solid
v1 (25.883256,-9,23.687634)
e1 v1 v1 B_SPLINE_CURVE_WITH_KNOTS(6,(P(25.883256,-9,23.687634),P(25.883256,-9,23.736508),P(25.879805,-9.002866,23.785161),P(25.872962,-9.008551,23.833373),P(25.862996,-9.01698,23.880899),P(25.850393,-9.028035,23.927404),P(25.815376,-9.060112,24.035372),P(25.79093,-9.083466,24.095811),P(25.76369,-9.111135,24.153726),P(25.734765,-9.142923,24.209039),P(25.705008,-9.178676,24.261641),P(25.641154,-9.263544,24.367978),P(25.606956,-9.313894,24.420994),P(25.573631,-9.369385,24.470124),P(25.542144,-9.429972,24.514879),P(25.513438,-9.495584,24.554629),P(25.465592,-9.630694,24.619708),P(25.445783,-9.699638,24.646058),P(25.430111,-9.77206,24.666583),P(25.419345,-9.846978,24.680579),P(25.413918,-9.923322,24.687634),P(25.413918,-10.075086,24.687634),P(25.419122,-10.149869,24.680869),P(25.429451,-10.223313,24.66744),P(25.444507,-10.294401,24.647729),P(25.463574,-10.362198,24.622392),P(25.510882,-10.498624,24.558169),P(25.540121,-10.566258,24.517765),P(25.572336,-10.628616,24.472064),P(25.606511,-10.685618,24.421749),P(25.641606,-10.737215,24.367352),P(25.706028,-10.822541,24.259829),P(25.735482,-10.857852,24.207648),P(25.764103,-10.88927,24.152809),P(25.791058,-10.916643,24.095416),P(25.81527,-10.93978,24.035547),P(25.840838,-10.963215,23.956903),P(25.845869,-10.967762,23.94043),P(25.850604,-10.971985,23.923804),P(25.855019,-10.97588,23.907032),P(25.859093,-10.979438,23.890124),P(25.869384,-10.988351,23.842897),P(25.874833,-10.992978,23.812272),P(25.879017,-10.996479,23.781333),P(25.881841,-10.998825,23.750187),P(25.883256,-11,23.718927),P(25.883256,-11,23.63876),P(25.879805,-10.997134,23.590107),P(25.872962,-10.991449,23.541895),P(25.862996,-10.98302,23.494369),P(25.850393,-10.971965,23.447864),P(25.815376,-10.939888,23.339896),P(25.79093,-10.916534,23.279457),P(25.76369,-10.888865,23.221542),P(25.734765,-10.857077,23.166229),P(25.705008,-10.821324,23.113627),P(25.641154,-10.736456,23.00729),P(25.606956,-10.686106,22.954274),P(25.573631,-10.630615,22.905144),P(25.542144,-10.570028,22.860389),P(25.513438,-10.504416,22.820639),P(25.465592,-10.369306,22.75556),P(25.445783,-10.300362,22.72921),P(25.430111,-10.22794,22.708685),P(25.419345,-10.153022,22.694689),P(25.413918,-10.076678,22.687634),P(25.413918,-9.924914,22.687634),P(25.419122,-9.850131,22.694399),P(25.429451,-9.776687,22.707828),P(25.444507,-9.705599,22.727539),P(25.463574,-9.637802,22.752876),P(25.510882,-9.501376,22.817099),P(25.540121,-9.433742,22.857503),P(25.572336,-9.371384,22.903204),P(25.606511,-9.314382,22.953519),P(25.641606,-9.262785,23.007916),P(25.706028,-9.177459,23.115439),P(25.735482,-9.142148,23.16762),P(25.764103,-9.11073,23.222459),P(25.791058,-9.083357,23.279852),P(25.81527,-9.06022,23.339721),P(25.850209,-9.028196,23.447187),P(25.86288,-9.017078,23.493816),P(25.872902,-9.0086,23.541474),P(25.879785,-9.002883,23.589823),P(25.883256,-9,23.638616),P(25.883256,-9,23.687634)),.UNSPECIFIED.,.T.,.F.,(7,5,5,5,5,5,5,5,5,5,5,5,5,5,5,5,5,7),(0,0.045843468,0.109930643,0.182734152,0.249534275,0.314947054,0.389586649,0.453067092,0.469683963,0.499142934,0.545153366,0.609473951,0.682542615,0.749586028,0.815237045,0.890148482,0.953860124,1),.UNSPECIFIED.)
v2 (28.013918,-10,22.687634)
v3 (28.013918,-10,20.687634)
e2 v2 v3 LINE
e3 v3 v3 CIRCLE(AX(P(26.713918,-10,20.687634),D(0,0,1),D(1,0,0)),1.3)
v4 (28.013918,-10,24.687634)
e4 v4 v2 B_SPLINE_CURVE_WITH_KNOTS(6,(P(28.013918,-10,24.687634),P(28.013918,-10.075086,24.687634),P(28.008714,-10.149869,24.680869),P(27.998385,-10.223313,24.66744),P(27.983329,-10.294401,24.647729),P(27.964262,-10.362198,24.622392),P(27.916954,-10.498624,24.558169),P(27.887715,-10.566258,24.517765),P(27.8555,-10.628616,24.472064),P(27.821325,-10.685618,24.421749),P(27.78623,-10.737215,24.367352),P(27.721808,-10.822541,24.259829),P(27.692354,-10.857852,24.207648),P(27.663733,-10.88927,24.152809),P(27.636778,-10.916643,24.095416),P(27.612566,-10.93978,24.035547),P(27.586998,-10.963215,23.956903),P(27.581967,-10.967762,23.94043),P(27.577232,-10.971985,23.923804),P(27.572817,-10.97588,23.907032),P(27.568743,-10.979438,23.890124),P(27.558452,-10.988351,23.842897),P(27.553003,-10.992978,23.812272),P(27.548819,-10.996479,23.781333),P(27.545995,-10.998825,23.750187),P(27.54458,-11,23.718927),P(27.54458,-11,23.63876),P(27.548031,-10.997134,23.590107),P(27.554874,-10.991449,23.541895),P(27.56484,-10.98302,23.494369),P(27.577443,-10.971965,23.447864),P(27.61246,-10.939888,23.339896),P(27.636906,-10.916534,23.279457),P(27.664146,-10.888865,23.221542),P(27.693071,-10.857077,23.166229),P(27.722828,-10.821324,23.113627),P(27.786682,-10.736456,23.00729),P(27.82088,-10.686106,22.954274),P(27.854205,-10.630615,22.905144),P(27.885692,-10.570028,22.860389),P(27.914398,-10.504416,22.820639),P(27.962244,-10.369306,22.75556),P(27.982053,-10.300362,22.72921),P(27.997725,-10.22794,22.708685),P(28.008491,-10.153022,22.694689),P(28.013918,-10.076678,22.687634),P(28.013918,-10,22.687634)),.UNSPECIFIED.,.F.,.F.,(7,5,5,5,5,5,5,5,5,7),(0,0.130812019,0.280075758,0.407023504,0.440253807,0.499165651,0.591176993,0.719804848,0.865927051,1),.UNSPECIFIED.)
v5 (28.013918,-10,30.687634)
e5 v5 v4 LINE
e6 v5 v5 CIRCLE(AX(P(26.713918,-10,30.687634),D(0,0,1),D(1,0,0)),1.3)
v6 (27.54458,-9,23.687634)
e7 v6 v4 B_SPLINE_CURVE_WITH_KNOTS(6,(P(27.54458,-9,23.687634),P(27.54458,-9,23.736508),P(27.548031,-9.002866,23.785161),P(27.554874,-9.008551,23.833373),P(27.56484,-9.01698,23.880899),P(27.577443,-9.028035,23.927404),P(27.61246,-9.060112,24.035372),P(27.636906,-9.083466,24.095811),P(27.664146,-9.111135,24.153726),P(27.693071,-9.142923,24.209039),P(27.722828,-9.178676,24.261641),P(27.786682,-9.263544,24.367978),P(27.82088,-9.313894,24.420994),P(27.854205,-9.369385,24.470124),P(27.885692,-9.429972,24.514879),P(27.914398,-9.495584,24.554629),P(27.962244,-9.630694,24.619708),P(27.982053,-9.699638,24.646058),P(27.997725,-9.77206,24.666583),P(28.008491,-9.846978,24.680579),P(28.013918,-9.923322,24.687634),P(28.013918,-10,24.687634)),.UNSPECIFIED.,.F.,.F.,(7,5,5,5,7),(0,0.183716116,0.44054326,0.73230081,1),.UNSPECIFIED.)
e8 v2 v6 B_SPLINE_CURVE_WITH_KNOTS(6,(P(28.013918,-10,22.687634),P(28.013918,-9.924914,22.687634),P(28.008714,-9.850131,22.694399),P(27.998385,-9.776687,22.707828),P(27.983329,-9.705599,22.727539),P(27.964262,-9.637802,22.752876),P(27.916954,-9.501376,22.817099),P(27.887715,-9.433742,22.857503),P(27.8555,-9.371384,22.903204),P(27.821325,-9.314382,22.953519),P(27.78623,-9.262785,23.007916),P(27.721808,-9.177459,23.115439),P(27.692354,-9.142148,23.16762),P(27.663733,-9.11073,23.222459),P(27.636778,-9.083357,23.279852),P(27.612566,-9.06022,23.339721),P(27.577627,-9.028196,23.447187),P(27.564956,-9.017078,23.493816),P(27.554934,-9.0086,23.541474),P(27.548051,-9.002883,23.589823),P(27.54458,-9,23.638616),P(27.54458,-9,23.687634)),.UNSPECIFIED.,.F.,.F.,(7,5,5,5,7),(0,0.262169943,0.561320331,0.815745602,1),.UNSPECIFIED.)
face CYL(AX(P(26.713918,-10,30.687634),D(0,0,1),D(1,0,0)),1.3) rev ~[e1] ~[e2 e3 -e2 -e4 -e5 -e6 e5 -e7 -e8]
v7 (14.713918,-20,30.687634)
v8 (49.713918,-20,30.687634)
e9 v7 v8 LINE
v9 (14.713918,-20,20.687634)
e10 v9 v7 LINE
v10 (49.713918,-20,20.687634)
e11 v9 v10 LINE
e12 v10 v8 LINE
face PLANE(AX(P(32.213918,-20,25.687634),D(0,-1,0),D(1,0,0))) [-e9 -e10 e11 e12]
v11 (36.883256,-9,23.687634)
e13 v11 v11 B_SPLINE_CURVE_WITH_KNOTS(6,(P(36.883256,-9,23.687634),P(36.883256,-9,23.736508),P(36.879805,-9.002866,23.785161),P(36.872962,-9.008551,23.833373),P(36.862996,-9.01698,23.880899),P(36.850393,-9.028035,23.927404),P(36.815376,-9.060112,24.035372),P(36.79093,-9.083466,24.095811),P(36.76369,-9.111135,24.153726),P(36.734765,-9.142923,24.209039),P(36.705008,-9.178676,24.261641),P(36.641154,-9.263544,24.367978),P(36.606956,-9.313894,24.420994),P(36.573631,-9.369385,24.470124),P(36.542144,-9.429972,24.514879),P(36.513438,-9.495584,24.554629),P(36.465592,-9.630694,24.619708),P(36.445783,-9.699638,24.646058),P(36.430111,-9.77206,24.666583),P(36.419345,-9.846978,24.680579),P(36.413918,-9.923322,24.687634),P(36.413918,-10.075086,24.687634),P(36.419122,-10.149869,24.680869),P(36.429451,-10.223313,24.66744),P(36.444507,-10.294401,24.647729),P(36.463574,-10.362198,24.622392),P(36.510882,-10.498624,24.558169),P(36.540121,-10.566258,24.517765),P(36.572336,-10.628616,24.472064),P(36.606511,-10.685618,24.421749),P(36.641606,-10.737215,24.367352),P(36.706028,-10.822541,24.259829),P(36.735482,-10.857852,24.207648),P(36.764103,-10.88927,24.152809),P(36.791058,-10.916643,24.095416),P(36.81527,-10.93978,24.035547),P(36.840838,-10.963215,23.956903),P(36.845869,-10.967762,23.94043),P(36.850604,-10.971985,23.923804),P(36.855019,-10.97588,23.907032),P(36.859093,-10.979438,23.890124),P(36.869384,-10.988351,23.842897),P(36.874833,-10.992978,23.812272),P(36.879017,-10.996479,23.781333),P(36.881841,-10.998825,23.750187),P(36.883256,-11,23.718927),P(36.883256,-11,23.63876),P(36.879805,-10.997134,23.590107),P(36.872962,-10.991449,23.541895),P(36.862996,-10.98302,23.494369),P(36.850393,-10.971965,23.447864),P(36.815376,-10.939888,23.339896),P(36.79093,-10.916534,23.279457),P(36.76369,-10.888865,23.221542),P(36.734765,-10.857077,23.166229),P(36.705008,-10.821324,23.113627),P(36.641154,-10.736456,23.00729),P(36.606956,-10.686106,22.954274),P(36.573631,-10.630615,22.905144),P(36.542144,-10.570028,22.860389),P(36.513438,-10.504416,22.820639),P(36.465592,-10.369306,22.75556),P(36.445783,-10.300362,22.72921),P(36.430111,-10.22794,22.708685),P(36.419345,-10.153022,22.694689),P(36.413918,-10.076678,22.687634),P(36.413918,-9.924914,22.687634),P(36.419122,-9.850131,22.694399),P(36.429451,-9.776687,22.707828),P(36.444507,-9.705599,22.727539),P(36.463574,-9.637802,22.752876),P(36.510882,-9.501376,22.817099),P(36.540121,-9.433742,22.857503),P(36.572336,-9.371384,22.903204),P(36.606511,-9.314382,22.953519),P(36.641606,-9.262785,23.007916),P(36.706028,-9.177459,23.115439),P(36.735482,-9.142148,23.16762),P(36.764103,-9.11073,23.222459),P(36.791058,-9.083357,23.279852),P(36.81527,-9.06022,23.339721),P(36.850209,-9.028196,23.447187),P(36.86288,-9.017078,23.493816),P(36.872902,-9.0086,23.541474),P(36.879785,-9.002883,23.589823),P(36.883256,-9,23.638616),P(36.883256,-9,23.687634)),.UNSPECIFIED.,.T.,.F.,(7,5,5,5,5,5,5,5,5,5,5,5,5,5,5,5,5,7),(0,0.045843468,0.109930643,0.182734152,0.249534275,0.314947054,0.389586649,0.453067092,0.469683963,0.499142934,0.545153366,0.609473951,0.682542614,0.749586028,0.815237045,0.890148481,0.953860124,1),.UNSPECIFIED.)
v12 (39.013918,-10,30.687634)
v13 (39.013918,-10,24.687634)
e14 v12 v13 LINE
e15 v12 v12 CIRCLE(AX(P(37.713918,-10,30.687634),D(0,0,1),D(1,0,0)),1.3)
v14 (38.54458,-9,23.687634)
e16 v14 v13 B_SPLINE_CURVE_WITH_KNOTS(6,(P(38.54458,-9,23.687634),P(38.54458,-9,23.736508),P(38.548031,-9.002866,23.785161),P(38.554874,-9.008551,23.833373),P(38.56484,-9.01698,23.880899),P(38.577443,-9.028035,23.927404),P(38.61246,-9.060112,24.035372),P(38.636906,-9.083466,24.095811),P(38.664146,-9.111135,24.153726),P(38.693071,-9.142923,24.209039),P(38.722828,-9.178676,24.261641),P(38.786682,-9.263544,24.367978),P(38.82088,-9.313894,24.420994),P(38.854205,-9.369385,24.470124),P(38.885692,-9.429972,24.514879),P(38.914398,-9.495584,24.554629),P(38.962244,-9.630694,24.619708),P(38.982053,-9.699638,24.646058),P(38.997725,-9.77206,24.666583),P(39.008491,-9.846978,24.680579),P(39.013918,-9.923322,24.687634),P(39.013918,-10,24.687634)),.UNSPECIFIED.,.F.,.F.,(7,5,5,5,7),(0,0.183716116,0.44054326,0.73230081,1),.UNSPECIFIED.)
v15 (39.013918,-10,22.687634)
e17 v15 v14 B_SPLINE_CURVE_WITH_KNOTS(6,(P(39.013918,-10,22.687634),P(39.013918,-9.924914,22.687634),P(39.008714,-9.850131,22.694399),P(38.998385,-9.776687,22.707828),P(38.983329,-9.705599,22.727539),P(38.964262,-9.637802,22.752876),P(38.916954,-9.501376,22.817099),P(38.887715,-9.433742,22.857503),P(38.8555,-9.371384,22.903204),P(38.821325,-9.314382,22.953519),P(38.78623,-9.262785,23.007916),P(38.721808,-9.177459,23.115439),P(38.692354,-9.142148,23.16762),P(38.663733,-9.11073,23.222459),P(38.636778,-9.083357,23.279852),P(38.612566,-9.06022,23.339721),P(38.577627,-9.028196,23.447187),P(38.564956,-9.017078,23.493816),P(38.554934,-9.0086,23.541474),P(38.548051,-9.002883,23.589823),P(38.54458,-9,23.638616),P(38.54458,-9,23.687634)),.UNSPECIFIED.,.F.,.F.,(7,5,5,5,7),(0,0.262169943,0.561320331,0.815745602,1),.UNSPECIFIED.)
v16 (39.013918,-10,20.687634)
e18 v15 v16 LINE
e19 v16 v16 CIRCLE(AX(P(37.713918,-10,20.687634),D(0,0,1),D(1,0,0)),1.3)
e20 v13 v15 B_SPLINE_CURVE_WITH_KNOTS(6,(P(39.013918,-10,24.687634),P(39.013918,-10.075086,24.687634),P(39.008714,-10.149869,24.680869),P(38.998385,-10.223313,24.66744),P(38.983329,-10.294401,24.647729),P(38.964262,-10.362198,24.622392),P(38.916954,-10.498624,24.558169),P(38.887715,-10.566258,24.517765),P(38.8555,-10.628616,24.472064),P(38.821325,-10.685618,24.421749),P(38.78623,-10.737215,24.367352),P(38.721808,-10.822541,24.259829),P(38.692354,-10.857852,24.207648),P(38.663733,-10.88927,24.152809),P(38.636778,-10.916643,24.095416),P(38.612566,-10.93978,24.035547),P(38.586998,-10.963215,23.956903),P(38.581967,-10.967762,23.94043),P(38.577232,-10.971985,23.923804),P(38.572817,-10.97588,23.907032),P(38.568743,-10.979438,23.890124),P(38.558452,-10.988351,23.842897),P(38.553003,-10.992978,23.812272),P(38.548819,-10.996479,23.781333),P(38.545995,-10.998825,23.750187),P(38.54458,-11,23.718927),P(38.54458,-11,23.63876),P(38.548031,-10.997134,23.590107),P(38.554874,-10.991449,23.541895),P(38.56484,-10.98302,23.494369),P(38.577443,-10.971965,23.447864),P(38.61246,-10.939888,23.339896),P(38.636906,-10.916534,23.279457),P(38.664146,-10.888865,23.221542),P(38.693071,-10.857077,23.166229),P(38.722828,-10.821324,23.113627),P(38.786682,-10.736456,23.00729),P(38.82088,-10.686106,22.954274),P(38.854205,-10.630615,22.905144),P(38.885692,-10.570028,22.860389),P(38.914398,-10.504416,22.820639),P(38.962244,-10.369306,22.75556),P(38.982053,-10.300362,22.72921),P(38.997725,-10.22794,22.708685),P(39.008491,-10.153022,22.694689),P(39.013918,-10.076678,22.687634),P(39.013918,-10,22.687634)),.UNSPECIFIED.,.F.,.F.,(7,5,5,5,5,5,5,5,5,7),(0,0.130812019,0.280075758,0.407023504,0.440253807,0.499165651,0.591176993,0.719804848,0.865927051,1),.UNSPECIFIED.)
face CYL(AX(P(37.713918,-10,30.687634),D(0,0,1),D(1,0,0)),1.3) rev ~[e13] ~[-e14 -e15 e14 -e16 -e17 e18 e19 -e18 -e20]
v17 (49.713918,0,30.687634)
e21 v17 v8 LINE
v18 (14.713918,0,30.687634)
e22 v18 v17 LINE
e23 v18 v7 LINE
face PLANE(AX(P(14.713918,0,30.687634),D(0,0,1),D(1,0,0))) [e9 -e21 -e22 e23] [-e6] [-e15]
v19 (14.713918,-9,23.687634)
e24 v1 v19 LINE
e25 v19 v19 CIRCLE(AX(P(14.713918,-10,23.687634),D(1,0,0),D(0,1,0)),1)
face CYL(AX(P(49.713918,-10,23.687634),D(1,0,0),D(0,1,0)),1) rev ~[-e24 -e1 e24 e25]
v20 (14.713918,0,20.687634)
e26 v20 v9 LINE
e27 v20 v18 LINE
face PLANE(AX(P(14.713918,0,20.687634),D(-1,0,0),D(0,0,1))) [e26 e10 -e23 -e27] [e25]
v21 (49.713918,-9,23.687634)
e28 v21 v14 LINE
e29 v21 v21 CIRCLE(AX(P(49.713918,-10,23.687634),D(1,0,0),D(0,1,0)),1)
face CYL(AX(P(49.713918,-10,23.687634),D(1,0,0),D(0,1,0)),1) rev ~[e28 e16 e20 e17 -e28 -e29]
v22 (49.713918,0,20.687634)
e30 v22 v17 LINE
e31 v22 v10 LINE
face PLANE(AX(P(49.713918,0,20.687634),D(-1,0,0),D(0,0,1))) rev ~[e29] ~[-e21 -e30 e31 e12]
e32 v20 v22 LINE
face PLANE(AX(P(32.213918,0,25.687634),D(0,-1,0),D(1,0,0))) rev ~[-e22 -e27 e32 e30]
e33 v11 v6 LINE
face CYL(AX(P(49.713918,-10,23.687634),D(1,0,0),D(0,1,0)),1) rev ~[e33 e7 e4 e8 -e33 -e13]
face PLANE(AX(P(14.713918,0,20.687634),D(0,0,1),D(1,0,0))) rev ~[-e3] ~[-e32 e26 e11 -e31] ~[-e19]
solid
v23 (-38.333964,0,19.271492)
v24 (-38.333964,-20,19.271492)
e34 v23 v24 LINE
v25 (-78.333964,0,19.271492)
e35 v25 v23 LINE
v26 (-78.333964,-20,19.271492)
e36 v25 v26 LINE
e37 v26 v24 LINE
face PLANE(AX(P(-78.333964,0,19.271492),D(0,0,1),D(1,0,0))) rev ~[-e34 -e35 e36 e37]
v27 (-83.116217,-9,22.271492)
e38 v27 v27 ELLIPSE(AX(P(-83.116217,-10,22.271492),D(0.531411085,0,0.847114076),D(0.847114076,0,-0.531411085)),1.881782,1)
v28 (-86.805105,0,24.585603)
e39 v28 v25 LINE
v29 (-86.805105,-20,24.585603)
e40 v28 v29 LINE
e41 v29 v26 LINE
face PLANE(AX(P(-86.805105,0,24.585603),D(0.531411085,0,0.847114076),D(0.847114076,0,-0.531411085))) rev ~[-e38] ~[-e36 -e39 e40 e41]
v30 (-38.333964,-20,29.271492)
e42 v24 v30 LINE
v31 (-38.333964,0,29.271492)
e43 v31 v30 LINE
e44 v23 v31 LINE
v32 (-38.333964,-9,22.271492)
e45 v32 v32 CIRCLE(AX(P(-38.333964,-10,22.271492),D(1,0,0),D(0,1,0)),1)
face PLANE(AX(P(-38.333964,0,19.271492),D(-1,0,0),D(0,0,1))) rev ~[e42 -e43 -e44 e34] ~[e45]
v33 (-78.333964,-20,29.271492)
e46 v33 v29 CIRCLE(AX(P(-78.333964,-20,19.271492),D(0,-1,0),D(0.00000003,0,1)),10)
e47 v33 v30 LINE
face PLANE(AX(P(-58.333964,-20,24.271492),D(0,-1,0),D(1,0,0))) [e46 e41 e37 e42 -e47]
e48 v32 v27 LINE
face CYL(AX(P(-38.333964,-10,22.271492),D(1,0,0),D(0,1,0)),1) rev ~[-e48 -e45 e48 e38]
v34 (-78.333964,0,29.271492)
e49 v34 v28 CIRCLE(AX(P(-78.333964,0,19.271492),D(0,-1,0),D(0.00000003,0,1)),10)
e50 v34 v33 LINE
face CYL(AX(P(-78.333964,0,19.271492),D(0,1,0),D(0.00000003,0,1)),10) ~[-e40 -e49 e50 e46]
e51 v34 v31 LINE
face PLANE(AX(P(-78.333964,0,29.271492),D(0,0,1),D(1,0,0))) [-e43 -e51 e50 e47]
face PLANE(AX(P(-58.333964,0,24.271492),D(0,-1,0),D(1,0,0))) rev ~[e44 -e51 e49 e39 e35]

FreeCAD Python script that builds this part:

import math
import FreeCAD as App
import Part
import Sketcher

V = App.Vector


def add_polygon(sketch, points):
    """Adds a closed chain of lines whose ends are joined by coincident constraints."""
    first, n = sketch.GeometryCount, len(points)
    for a, b in zip(points, points[1:] + points[:1]):
        sketch.addGeometry(Part.LineSegment(App.Vector(*a, 0), App.Vector(*b, 0)), False)
    for i in range(n):
        sketch.addConstraint(Sketcher.Constraint("Coincident", first + i, 2, first + (i + 1) % n, 1))

doc = App.newDocument("Part")
body = doc.addObject("PartDesign::Body", "Body")
body.AllowCompound = True

sketch1 = body.newObject("Sketcher::SketchObject", "Sketch")
sketch1.AttachmentSupport = (doc.getObject("XZ_Plane"), [""])
sketch1.MapMode = "FlatFace"
sketch1.addGeometry(Part.LineSegment(V(-78, 19, 0), V(-38, 19, 0)), False)
sketch1.addGeometry(Part.LineSegment(V(-38, 19, 0), V(-38, 29, 0)), False)
sketch1.addGeometry(Part.LineSegment(V(-38, 29, 0), V(-78, 29, 0)), False)
sketch1.addGeometry(Part.ArcOfCircle(Part.Circle(V(-78, 19, 0), V(0, 0, 1), 10), math.radians(90), math.radians(148)), False)
sketch1.addGeometry(Part.LineSegment(V(-87, 25, 0), V(-78, 19, 0)), False)
add_polygon(sketch1, [(15, 31), (15, 21), (50, 21), (50, 31)])
sketch1.addConstraint(Sketcher.Constraint("Coincident", 0, 2, 1, 1))
sketch1.addConstraint(Sketcher.Constraint("Coincident", 1, 2, 2, 1))
sketch1.addConstraint(Sketcher.Constraint("Tangent", 2, 2, 3, 1))
sketch1.addConstraint(Sketcher.Constraint("Coincident", 3, 2, 4, 1))
sketch1.addConstraint(Sketcher.Constraint("Coincident", 4, 2, 0, 1))
sketch1.addConstraint(Sketcher.Constraint("Horizontal", 0))
sketch1.addConstraint(Sketcher.Constraint("Vertical", 1))
sketch1.addConstraint(Sketcher.Constraint("Horizontal", 2))
sketch1.addConstraint(Sketcher.Constraint("Vertical", 5))
sketch1.addConstraint(Sketcher.Constraint("Horizontal", 6))
sketch1.addConstraint(Sketcher.Constraint("Vertical", 7))
sketch1.addConstraint(Sketcher.Constraint("Horizontal", 8))
sketch1.addConstraint(Sketcher.Constraint("Coincident", 4, 2, 3, 3))
sketch1.addConstraint(Sketcher.Constraint("Equal", 1, 5))
sketch1.addConstraint(Sketcher.Constraint("Radius", 3, 10.0))
sketch1.addConstraint(Sketcher.Constraint("DistanceX", 0, 1, 0, 2, 40.0))
sketch1.addConstraint(Sketcher.Constraint("DistanceX", 6, 1, 6, 2, 35.0))
sketch1.addConstraint(Sketcher.Constraint("DistanceY", -1, 1, 3, 3, 19.271492))
sketch1.addConstraint(Sketcher.Constraint("DistanceX", 3, 2, 2, 2, 8.471141))
sketch1.addConstraint(Sketcher.Constraint("DistanceX", 4, 2, 5, 2, 93.047882))
sketch1.addConstraint(Sketcher.Constraint("DistanceX", 3, 3, -1, 1, 78.333964))
sketch1.addConstraint(Sketcher.Constraint("DistanceY", -1, 1, 5, 2, 20.687634))
pad1 = body.newObject("PartDesign::Pad", "Pad")
pad1.Profile = sketch1
pad1.Length = 20

sketch2 = body.newObject("Sketcher::SketchObject", "Sketch001")
sketch2.AttachmentSupport = (doc.getObject("YZ_Plane"), [""])
sketch2.MapMode = "FlatFace"
sketch2.AttachmentOffset = App.Placement(V(0, 0, -38.333964), App.Rotation())
sketch2.addGeometry(Part.Circle(V(-10, 22.3, 0), V(0, 0, 1), 1), False)
sketch2.addConstraint(Sketcher.Constraint("Diameter", 0, 2.0))
sketch2.addConstraint(Sketcher.Constraint("DistanceX", 0, 3, -1, 1, 10.0))
sketch2.addConstraint(Sketcher.Constraint("DistanceY", -1, 1, 0, 3, 22.271492))
pocket1 = body.newObject("PartDesign::Pocket", "Pocket")
pocket1.Profile = sketch2
pocket1.Length = 58.166

sketch3 = body.newObject("Sketcher::SketchObject", "Sketch002")
sketch3.AttachmentSupport = (doc.getObject("YZ_Plane"), [""])
sketch3.MapMode = "FlatFace"
sketch3.AttachmentOffset = App.Placement(V(0, 0, 49.713918), App.Rotation())
sketch3.addGeometry(Part.Circle(V(-10, 23.7, 0), V(0, 0, 1), 1), False)
sketch3.addConstraint(Sketcher.Constraint("Diameter", 0, 2.0))
sketch3.addConstraint(Sketcher.Constraint("DistanceX", 0, 3, -1, 1, 10.0))
sketch3.addConstraint(Sketcher.Constraint("DistanceY", -1, 1, 0, 3, 23.687634))
pocket2 = body.newObject("PartDesign::Pocket", "Pocket001")
pocket2.Profile = sketch3
pocket2.Length = 44.9834

sketch4 = body.newObject("Sketcher::SketchObject", "Sketch003")
sketch4.AttachmentSupport = (doc.getObject("XY_Plane"), [""])
sketch4.MapMode = "FlatFace"
sketch4.AttachmentOffset = App.Placement(V(0, 0, 30.687634), App.Rotation())
sketch4.addGeometry(Part.Circle(V(26.7, -10, 0), V(0, 0, 1), 1.3), False)
sketch4.addGeometry(Part.Circle(V(37.7, -10, 0), V(0, 0, 1), 1.3), False)
sketch4.addConstraint(Sketcher.Constraint("Equal", 0, 1))
sketch4.addConstraint(Sketcher.Constraint("Horizontal", 0, 3, 1, 3))
sketch4.addConstraint(Sketcher.Constraint("Diameter", 0, 2.6))
sketch4.addConstraint(Sketcher.Constraint("DistanceY", 0, 3, -1, 1, 10.0))
sketch4.addConstraint(Sketcher.Constraint("DistanceX", 0, 3, 1, 3, 11.0))
sketch4.addConstraint(Sketcher.Constraint("DistanceX", -1, 1, 0, 3, 26.713918))
pocket3 = body.newObject("PartDesign::Pocket", "Pocket002")
pocket3.Profile = sketch4
pocket3.Length = 25.4

doc.recompute()
